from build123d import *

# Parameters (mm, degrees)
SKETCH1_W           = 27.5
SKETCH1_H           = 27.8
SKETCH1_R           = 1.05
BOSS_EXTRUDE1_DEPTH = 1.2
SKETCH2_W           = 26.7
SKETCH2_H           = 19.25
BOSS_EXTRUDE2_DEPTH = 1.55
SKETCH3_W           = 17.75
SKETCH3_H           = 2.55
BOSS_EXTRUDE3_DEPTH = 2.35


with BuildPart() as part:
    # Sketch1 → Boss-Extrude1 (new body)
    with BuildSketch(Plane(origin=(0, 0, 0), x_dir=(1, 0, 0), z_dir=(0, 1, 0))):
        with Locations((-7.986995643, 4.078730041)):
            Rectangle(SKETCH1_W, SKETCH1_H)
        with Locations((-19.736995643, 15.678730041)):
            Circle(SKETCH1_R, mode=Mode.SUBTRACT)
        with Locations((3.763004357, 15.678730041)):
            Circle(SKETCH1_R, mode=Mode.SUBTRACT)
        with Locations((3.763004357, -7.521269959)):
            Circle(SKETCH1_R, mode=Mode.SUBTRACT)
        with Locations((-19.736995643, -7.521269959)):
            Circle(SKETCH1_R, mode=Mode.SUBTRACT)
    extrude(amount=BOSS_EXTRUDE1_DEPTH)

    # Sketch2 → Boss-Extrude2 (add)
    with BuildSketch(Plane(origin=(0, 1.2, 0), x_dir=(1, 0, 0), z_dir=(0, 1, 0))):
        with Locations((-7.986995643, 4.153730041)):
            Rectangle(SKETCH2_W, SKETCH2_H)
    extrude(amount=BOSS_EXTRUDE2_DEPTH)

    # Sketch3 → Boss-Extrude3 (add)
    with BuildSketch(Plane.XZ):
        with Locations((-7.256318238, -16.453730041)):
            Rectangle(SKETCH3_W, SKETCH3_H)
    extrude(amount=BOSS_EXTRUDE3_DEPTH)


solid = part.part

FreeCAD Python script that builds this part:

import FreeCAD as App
import Part
import Sketcher

doc = App.newDocument("Part")
params = doc.addObject("Spreadsheet::Sheet", "Params")
for row, (alias, value) in enumerate([
    ("sketch1_diameter", "2.1 mm"),
    ("sketch1_width", "27.5 mm"),
    ("sketch1_height", "27.8 mm"),
    ("pad1_length", "1.2 mm"),
    ("sketch2_width", "26.7 mm"),
    ("sketch2_height", "19.25 mm"),
    ("pad2_length", "1.55 mm"),
    ("sketch3_width", "17.75 mm"),
    ("sketch3_height", "2.55 mm"),
    ("pad3_length", "2.35 mm"),
], start=1):
    params.set(f"A{row}", alias)
    params.set(f"B{row}", "=" + value)
    params.setAlias(f"B{row}", alias)

body = doc.addObject("PartDesign::Body", "Body")

sketch1 = doc.addObject("Sketcher::SketchObject", "Sketch")
body.addObject(sketch1)
sketch1.AttachmentSupport = (doc.XZ_Plane, [""])
sketch1.MapMode = "FlatFace"
sketch1.addGeometry([
    Part.LineSegment(App.Vector(-21.7, -18, 0), App.Vector(-21.7, 9.8, 0)),
    Part.LineSegment(App.Vector(-21.7, 9.8, 0), App.Vector(5.8, 9.8, 0)),
    Part.LineSegment(App.Vector(5.8, 9.8, 0), App.Vector(5.8, -18, 0)),
    Part.LineSegment(App.Vector(5.8, -18, 0), App.Vector(-21.7, -18, 0)),
    Part.Circle(App.Vector(-19.7, 7.5, 0), App.Vector(0, 0, 1), 1.1),
    Part.Circle(App.Vector(3.8, 7.5, 0), App.Vector(0, 0, 1), 1.1),
    Part.Circle(App.Vector(-19.7, -15.7, 0), App.Vector(0, 0, 1), 1.1),
    Part.Circle(App.Vector(3.8, -15.7, 0), App.Vector(0, 0, 1), 1.1),
], False)
sketch1.addConstraint([
    Sketcher.Constraint("Coincident", 0, 2, 1, 1),
    Sketcher.Constraint("Coincident", 1, 2, 2, 1),
    Sketcher.Constraint("Coincident", 2, 2, 3, 1),
    Sketcher.Constraint("Coincident", 3, 2, 0, 1),
    Sketcher.Constraint("Vertical", 0),
    Sketcher.Constraint("Horizontal", 1),
    Sketcher.Constraint("Vertical", 2),
    Sketcher.Constraint("Horizontal", 3),
    Sketcher.Constraint("Equal", 4, 5),
    Sketcher.Constraint("Equal", 5, 6),
    Sketcher.Constraint("Equal", 6, 7),
    Sketcher.Constraint("Horizontal", 4, 3, 5, 3),
    Sketcher.Constraint("Horizontal", 6, 3, 7, 3),
    Sketcher.Constraint("Vertical", 4, 3, 6, 3),
    Sketcher.Constraint("Vertical", 5, 3, 7, 3),
    Sketcher.Constraint("Diameter", 4, 2.1),
    Sketcher.Constraint("DistanceX", 1, 1, 1, 2, 27.5),
    Sketcher.Constraint("DistanceY", 0, 1, 0, 2, 27.8),
    Sketcher.Constraint("DistanceX", 0, 2, 4, 3, 2.0),
    Sketcher.Constraint("DistanceX", 5, 3, 1, 2, 2.0),
    Sketcher.Constraint("DistanceY", 6, 3, 4, 3, 23.2),
    Sketcher.Constraint("DistanceY", 4, 3, 0, 2, 2.3),
    Sketcher.Constraint("DistanceY", -1, 1, 4, 3, 7.52127),
    Sketcher.Constraint("DistanceX", 4, 3, -1, 1, 19.736996),
])
sketch1.setExpression("Constraints[15]", "Params.sketch1_diameter")
sketch1.setExpression("Constraints[16]", "Params.sketch1_width")
sketch1.setExpression("Constraints[17]", "Params.sketch1_height")
pad1 = doc.addObject("PartDesign::Pad", "Pad")
body.addObject(pad1)
pad1.Profile = sketch1
pad1.setExpression("Length", "Params.pad1_length")
pad1.Reversed = True

sketch2 = doc.addObject("Sketcher::SketchObject", "Sketch001")
body.addObject(sketch2)
sketch2.AttachmentSupport = (doc.XZ_Plane, [""])
sketch2.MapMode = "FlatFace"
sketch2.AttachmentOffset = App.Placement(App.Vector(0, 0, -1.2), App.Rotation())
sketch2.addGeometry([
    Part.LineSegment(App.Vector(-21, -14, 0), App.Vector(-21, 5, 0)),
    Part.LineSegment(App.Vector(-21, 5, 0), App.Vector(5, 5, 0)),
    Part.LineSegment(App.Vector(5, 5, 0), App.Vector(5, -14, 0)),
    Part.LineSegment(App.Vector(5, -14, 0), App.Vector(-21, -14, 0)),
], False)
sketch2.addConstraint([
    Sketcher.Constraint("Coincident", 0, 2, 1, 1),
    Sketcher.Constraint("Coincident", 1, 2, 2, 1),
    Sketcher.Constraint("Coincident", 2, 2, 3, 1),
    Sketcher.Constraint("Coincident", 3, 2, 0, 1),
    Sketcher.Constraint("Vertical", 0),
    Sketcher.Constraint("Horizontal", 1),
    Sketcher.Constraint("Vertical", 2),
    Sketcher.Constraint("Horizontal", 3),
    Sketcher.Constraint("DistanceX", 1, 1, 1, 2, 26.7),
    Sketcher.Constraint("DistanceY", 0, 1, 0, 2, 19.25),
    Sketcher.Constraint("DistanceY", -1, 1, 0, 2, 5.47127),
    Sketcher.Constraint("DistanceX", 0, 2, -1, 1, 21.336996),
])
sketch2.setExpression("Constraints[8]", "Params.sketch2_width")
sketch2.setExpression("Constraints[9]", "Params.sketch2_height")
pad2 = doc.addObject("PartDesign::Pad", "Pad001")
body.addObject(pad2)
pad2.Profile = sketch2
pad2.setExpression("Length", "Params.pad2_length")
pad2.Reversed = True

sketch3 = doc.addObject("Sketcher::SketchObject", "Sketch002")
body.addObject(sketch3)
sketch3.AttachmentSupport = (doc.XZ_Plane, [""])
sketch3.MapMode = "FlatFace"
sketch3.addGeometry([
    Part.LineSegment(App.Vector(-16.1, -15.2, 0), App.Vector(-16.1, -17.7, 0)),
    Part.LineSegment(App.Vector(-16.1, -17.7, 0), App.Vector(1.6, -17.7, 0)),
    Part.LineSegment(App.Vector(1.6, -17.7, 0), App.Vector(1.6, -15.2, 0)),
    Part.LineSegment(App.Vector(1.6, -15.2, 0), App.Vector(-16.1, -15.2, 0)),
], False)
sketch3.addConstraint([
    Sketcher.Constraint("Coincident", 0, 2, 1, 1),
    Sketcher.Constraint("Coincident", 1, 2, 2, 1),
    Sketcher.Constraint("Coincident", 2, 2, 3, 1),
    Sketcher.Constraint("Coincident", 3, 2, 0, 1),
    Sketcher.Constraint("Vertical", 0),
    Sketcher.Constraint("Horizontal", 1),
    Sketcher.Constraint("Vertical", 2),
    Sketcher.Constraint("Horizontal", 3),
    Sketcher.Constraint("DistanceX", 1, 1, 1, 2, 17.75),
    Sketcher.Constraint("DistanceY", 0, 2, 0, 1, 2.55),
    Sketcher.Constraint("DistanceX", 0, 2, -1, 1, 16.131318),
    Sketcher.Constraint("DistanceY", 0, 2, -1, 1, 17.72873),
])
sketch3.setExpression("Constraints[8]", "Params.sketch3_width")
sketch3.setExpression("Constraints[9]", "Params.sketch3_height")
pad3 = doc.addObject("PartDesign::Pad", "Pad002")
body.addObject(pad3)
pad3.Profile = sketch3
pad3.setExpression("Length", "Params.pad3_length")

doc.recompute()
